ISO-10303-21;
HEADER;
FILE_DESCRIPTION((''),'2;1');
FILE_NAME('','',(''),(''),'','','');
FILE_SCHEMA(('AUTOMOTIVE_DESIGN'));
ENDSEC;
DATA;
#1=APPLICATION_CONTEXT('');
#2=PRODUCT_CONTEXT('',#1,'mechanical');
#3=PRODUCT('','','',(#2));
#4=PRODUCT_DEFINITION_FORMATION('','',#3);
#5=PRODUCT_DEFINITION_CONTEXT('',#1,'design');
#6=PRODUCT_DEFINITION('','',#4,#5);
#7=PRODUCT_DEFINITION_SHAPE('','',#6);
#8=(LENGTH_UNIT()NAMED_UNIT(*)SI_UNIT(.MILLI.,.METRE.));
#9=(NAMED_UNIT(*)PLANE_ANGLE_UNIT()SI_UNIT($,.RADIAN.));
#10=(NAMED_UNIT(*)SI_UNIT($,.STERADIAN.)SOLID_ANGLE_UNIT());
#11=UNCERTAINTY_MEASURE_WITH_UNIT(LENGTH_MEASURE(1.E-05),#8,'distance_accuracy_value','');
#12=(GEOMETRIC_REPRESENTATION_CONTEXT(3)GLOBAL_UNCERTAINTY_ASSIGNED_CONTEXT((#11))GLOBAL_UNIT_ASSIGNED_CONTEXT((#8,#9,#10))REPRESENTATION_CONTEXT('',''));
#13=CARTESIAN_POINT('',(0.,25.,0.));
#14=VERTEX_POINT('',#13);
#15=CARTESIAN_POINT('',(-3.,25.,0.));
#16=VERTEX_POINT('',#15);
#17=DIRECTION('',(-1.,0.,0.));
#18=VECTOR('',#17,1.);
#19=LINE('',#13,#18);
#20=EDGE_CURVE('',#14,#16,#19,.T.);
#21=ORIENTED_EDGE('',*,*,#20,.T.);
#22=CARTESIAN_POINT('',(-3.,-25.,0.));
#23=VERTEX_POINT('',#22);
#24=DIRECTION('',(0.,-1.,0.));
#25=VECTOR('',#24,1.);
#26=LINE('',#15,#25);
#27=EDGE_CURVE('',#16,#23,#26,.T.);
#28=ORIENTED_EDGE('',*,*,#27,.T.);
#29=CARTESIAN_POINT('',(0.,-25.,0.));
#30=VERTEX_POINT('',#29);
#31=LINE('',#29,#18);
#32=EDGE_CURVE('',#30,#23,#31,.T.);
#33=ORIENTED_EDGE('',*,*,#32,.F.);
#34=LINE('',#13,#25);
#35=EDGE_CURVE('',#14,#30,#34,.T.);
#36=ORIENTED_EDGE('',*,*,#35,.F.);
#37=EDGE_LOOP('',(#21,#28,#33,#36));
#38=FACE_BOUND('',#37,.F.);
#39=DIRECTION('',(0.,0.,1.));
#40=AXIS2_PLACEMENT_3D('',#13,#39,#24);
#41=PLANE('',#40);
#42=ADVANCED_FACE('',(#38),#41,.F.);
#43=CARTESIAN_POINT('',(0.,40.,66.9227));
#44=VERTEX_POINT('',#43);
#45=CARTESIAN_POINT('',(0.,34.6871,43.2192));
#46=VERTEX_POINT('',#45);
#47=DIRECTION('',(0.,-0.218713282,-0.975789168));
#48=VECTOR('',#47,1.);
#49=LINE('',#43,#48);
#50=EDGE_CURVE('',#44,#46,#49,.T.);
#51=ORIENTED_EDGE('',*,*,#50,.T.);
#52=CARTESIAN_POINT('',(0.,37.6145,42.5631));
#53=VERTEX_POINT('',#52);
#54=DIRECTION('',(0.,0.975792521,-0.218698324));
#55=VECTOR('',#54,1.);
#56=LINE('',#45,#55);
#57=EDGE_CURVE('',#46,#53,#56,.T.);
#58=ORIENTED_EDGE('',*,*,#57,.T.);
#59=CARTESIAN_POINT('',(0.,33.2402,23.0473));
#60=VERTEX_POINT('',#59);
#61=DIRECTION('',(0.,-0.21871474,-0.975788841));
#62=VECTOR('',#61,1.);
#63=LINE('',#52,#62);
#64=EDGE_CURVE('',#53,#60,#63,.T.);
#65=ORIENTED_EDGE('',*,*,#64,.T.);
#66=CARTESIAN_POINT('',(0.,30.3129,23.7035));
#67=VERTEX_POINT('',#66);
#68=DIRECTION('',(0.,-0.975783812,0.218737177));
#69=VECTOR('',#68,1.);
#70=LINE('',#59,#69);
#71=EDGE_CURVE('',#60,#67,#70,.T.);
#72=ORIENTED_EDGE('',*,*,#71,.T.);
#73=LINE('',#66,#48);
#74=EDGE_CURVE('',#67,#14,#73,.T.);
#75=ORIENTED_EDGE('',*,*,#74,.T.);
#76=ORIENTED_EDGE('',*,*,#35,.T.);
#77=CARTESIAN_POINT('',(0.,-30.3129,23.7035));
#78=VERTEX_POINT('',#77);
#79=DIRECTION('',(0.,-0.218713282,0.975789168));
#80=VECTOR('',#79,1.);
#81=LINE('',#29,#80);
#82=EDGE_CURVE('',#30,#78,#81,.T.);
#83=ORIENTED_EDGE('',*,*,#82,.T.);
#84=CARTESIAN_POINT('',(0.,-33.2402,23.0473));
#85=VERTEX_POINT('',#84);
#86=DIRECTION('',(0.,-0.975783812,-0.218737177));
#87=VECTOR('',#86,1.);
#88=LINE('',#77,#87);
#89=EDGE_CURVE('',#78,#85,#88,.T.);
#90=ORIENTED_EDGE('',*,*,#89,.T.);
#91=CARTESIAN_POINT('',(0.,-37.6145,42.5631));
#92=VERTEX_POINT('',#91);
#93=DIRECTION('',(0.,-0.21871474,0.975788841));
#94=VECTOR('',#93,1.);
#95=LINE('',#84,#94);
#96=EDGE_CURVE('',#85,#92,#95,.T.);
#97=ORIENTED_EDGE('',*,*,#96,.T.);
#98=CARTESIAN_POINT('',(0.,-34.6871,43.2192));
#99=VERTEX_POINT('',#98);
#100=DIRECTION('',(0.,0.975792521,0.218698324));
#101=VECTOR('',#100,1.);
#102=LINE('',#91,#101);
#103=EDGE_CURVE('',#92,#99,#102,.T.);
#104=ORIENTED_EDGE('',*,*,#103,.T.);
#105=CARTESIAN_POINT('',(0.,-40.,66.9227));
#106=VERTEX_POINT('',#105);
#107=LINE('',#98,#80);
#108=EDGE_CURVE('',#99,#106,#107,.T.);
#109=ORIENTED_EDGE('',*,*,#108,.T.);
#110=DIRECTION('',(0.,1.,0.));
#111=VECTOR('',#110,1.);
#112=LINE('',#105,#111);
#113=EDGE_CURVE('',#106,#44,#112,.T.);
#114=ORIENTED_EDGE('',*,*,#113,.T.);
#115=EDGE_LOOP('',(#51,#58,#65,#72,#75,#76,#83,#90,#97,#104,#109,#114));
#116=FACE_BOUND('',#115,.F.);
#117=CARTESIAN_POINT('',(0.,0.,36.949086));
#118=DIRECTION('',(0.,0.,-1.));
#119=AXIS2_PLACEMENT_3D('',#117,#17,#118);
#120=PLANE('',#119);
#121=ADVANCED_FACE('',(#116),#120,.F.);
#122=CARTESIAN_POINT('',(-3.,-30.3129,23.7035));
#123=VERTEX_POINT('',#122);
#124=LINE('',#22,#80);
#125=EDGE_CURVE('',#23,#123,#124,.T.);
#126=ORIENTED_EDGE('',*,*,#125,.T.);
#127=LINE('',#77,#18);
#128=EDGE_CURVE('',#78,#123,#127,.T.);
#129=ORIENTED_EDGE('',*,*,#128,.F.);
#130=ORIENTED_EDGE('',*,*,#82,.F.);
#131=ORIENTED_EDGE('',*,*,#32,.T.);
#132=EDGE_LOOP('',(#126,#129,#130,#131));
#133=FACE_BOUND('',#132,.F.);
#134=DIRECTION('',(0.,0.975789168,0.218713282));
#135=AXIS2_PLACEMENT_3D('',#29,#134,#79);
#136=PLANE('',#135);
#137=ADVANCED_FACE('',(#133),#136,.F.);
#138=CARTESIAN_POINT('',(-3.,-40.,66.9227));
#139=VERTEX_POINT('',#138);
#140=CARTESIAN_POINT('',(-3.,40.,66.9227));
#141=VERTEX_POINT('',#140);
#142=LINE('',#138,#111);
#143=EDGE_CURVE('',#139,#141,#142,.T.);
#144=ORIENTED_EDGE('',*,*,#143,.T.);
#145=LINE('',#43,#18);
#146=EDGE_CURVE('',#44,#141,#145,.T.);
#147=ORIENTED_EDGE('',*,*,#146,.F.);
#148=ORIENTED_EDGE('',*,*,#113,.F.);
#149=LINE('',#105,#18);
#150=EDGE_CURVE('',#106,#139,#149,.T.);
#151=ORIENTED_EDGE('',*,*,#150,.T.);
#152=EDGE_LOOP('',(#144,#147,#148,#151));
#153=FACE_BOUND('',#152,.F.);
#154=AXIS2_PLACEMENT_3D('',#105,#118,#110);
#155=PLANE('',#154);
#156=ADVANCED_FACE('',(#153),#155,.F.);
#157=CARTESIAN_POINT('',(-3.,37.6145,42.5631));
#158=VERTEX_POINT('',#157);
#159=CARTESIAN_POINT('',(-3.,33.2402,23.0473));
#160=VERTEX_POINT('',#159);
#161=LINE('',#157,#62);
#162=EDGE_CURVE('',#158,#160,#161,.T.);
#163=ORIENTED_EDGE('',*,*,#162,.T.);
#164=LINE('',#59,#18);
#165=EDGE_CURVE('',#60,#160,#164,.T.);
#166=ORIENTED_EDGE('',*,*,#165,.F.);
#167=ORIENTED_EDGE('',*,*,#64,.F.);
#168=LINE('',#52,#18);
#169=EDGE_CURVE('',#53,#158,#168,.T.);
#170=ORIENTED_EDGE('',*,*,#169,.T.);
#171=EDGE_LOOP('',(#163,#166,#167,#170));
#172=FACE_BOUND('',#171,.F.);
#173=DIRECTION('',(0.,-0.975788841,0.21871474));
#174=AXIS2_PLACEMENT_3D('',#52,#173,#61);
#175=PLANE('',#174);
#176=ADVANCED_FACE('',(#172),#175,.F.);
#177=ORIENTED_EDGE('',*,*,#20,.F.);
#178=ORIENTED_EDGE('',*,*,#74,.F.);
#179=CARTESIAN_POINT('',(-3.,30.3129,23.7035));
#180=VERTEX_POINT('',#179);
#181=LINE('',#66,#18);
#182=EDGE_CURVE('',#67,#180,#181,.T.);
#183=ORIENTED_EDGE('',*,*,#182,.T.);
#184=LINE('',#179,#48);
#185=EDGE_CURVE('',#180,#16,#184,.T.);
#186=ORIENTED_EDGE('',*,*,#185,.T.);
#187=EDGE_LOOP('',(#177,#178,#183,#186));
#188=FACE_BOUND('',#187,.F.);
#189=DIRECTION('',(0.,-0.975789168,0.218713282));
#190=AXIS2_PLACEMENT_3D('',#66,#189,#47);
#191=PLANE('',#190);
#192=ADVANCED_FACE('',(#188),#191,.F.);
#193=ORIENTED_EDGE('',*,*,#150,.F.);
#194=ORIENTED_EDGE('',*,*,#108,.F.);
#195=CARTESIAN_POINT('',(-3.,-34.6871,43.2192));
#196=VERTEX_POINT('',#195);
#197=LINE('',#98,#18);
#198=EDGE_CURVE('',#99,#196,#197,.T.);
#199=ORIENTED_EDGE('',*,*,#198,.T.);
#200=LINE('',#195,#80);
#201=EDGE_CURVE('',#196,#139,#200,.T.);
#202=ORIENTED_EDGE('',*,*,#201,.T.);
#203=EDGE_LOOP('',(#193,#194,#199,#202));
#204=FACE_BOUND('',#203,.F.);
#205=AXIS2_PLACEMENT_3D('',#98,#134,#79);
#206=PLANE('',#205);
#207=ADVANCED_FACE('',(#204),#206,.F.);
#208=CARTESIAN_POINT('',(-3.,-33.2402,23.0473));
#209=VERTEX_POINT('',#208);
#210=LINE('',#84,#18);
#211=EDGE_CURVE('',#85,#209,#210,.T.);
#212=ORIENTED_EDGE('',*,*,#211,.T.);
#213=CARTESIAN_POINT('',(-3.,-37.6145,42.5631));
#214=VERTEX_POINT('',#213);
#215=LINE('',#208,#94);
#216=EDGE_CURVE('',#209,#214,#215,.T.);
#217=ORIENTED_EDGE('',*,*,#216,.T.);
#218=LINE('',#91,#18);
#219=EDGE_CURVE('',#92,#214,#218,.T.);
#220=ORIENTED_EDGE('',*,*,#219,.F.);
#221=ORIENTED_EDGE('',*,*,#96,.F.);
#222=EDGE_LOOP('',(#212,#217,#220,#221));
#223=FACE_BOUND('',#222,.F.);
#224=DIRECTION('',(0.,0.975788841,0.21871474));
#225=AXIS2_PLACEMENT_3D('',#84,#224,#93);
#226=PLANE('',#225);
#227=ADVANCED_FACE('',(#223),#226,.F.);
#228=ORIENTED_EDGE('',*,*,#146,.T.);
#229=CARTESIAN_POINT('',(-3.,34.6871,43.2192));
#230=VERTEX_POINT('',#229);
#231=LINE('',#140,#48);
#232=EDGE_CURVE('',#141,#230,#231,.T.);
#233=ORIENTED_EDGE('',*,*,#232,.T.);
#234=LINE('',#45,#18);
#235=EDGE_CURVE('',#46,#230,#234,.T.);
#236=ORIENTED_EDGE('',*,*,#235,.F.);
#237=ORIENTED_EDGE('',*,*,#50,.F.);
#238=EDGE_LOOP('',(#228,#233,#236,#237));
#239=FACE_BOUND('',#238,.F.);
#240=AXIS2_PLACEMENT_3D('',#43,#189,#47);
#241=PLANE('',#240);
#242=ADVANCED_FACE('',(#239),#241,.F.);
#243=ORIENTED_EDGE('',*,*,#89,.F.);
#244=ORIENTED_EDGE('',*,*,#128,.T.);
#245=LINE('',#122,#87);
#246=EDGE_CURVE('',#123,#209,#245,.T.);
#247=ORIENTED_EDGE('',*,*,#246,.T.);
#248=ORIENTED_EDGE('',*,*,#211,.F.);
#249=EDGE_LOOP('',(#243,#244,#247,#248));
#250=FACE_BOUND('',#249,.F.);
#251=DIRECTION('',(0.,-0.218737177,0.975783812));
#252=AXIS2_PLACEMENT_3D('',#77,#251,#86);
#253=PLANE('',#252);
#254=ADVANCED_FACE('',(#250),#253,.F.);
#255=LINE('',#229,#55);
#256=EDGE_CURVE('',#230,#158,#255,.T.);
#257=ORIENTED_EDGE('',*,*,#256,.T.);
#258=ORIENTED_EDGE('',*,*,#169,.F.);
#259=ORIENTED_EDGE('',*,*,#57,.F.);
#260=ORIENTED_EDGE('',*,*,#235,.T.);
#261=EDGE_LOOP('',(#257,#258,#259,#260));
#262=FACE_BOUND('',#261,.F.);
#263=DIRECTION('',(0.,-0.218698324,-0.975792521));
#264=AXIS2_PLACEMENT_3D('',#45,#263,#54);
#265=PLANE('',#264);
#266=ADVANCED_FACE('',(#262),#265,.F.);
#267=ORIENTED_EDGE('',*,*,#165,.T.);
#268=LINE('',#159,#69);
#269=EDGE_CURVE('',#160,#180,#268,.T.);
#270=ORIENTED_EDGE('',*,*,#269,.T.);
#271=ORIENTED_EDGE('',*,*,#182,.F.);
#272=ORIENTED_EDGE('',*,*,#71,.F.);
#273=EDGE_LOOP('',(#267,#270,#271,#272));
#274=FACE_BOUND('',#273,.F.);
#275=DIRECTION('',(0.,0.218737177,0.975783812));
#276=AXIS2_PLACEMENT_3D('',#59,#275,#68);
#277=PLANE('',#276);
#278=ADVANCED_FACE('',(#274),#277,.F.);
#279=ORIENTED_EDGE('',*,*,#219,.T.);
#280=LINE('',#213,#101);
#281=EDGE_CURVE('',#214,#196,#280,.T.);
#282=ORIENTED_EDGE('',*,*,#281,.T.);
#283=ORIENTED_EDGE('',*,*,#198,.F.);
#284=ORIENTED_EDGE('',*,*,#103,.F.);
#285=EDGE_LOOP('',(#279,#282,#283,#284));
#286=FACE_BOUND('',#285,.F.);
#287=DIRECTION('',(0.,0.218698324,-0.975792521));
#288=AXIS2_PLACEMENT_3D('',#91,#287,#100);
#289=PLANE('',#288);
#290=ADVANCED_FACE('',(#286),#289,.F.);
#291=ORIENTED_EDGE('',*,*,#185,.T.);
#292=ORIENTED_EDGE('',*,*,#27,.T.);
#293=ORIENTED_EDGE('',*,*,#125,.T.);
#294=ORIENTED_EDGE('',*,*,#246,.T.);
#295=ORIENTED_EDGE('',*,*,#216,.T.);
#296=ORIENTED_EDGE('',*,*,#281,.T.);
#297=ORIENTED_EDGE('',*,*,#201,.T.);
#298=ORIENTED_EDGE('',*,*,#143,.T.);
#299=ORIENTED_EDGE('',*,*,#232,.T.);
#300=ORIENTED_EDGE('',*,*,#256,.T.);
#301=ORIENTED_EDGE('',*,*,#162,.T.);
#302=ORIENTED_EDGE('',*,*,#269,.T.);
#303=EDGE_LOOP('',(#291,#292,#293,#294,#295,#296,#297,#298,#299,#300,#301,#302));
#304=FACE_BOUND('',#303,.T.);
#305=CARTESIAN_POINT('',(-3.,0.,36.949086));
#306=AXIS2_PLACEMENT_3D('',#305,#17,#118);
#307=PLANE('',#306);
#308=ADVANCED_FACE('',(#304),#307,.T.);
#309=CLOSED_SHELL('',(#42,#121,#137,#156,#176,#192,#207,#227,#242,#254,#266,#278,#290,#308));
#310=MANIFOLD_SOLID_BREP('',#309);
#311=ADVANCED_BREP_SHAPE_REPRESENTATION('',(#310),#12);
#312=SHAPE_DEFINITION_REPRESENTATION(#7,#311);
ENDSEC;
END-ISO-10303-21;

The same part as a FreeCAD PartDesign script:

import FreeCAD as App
import Part
import Sketcher
from FreeCAD import Vector
Q = App.Units.Quantity


def add_polygon(sketch, points):
    """Adds a closed chain of lines whose ends are joined by coincident constraints."""
    first, n = sketch.GeometryCount, len(points)
    for a, b in zip(points, points[1:] + points[:1]):
        sketch.addGeometry(Part.LineSegment(App.Vector(*a, 0), App.Vector(*b, 0)), False)
    for i in range(n):
        sketch.addConstraint(Sketcher.Constraint("Coincident", first + i, 2, first + (i + 1) % n, 1))

doc = App.newDocument("Part")
body = doc.addObject("PartDesign::Body", "Body")

# Sketch on YZ plane
sketch1 = body.newObject("Sketcher::SketchObject", "Sketch")
sketch1.AttachmentSupport = (doc.getObject("YZ_Plane"), [""])
sketch1.MapMode = "FlatFace"
add_polygon(sketch1, [(34.6871, 43.2192), (40, 66.9227), (-40, 66.9227), (-34.6871, 43.2192), (-37.6145, 42.5631), (-33.2402, 23.0473), (-30.3129, 23.7035), (-25, 0), (25, 0), (30.3129, 23.7035), (33.2402, 23.0473), (37.6145, 42.5631)])  # lines 0-11
sketch1.addConstraint([
    Sketcher.Constraint("Horizontal", 1),
    Sketcher.Constraint("Horizontal", 7),
    Sketcher.Constraint("PointOnObject", 6, 2, -1),
    Sketcher.Constraint("DistanceX", -1, 1, 0, 2, Q("40 mm")),
    Sketcher.Constraint("DistanceX", 1, 2, -1, 1, Q("40 mm")),
    Sketcher.Constraint("DistanceX", 6, 2, -1, 1, Q("25 mm")),
    Sketcher.Constraint("DistanceX", -1, 1, 7, 2, Q("25 mm")),
    Sketcher.Constraint("Distance", 3, Q("3 mm")),
    Sketcher.Constraint("Distance", 4, Q("20 mm")),
    Sketcher.Constraint("Distance", 5, Q("3 mm")),
    Sketcher.Constraint("Distance", 9, Q("3 mm")),
    Sketcher.Constraint("Distance", 10, Q("20 mm")),
    Sketcher.Constraint("Distance", 11, Q("3 mm")),
    Sketcher.Constraint("DistanceX", 2, 2, -1, 1, Q("34.687 mm")),
    Sketcher.Constraint("DistanceX", -1, 1, 11, 2, Q("34.687 mm")),
    Sketcher.Constraint("DistanceX", 3, 2, -1, 1, Q("37.6145 mm")),
    Sketcher.Constraint("DistanceX", -1, 1, 10, 2, Q("37.6145 mm")),
    Sketcher.Constraint("DistanceY", -1, 1, 3, 2, Q("42.563 mm")),
    Sketcher.Constraint("DistanceX", 5, 2, -1, 1, Q("30.313 mm")),
    Sketcher.Constraint("DistanceX", -1, 1, 8, 2, Q("30.313 mm")),
    Sketcher.Constraint("DistanceY", -1, 1, 10, 2, Q("42.563 mm")),
    Sketcher.Constraint("DistanceX", 2, 2, 4, 2, Q("1.447 mm")),
    Sketcher.Constraint("DistanceX", 5, 2, 9, 2, Q("63.553 mm")),
    Sketcher.Constraint("Distance", 0, Q("24.2916 mm")),
])
pad1 = body.newObject("PartDesign::Pad", "Pad")
pad1.Profile = sketch1
pad1.Length = 3
pad1.Reversed = True

doc.recompute()
